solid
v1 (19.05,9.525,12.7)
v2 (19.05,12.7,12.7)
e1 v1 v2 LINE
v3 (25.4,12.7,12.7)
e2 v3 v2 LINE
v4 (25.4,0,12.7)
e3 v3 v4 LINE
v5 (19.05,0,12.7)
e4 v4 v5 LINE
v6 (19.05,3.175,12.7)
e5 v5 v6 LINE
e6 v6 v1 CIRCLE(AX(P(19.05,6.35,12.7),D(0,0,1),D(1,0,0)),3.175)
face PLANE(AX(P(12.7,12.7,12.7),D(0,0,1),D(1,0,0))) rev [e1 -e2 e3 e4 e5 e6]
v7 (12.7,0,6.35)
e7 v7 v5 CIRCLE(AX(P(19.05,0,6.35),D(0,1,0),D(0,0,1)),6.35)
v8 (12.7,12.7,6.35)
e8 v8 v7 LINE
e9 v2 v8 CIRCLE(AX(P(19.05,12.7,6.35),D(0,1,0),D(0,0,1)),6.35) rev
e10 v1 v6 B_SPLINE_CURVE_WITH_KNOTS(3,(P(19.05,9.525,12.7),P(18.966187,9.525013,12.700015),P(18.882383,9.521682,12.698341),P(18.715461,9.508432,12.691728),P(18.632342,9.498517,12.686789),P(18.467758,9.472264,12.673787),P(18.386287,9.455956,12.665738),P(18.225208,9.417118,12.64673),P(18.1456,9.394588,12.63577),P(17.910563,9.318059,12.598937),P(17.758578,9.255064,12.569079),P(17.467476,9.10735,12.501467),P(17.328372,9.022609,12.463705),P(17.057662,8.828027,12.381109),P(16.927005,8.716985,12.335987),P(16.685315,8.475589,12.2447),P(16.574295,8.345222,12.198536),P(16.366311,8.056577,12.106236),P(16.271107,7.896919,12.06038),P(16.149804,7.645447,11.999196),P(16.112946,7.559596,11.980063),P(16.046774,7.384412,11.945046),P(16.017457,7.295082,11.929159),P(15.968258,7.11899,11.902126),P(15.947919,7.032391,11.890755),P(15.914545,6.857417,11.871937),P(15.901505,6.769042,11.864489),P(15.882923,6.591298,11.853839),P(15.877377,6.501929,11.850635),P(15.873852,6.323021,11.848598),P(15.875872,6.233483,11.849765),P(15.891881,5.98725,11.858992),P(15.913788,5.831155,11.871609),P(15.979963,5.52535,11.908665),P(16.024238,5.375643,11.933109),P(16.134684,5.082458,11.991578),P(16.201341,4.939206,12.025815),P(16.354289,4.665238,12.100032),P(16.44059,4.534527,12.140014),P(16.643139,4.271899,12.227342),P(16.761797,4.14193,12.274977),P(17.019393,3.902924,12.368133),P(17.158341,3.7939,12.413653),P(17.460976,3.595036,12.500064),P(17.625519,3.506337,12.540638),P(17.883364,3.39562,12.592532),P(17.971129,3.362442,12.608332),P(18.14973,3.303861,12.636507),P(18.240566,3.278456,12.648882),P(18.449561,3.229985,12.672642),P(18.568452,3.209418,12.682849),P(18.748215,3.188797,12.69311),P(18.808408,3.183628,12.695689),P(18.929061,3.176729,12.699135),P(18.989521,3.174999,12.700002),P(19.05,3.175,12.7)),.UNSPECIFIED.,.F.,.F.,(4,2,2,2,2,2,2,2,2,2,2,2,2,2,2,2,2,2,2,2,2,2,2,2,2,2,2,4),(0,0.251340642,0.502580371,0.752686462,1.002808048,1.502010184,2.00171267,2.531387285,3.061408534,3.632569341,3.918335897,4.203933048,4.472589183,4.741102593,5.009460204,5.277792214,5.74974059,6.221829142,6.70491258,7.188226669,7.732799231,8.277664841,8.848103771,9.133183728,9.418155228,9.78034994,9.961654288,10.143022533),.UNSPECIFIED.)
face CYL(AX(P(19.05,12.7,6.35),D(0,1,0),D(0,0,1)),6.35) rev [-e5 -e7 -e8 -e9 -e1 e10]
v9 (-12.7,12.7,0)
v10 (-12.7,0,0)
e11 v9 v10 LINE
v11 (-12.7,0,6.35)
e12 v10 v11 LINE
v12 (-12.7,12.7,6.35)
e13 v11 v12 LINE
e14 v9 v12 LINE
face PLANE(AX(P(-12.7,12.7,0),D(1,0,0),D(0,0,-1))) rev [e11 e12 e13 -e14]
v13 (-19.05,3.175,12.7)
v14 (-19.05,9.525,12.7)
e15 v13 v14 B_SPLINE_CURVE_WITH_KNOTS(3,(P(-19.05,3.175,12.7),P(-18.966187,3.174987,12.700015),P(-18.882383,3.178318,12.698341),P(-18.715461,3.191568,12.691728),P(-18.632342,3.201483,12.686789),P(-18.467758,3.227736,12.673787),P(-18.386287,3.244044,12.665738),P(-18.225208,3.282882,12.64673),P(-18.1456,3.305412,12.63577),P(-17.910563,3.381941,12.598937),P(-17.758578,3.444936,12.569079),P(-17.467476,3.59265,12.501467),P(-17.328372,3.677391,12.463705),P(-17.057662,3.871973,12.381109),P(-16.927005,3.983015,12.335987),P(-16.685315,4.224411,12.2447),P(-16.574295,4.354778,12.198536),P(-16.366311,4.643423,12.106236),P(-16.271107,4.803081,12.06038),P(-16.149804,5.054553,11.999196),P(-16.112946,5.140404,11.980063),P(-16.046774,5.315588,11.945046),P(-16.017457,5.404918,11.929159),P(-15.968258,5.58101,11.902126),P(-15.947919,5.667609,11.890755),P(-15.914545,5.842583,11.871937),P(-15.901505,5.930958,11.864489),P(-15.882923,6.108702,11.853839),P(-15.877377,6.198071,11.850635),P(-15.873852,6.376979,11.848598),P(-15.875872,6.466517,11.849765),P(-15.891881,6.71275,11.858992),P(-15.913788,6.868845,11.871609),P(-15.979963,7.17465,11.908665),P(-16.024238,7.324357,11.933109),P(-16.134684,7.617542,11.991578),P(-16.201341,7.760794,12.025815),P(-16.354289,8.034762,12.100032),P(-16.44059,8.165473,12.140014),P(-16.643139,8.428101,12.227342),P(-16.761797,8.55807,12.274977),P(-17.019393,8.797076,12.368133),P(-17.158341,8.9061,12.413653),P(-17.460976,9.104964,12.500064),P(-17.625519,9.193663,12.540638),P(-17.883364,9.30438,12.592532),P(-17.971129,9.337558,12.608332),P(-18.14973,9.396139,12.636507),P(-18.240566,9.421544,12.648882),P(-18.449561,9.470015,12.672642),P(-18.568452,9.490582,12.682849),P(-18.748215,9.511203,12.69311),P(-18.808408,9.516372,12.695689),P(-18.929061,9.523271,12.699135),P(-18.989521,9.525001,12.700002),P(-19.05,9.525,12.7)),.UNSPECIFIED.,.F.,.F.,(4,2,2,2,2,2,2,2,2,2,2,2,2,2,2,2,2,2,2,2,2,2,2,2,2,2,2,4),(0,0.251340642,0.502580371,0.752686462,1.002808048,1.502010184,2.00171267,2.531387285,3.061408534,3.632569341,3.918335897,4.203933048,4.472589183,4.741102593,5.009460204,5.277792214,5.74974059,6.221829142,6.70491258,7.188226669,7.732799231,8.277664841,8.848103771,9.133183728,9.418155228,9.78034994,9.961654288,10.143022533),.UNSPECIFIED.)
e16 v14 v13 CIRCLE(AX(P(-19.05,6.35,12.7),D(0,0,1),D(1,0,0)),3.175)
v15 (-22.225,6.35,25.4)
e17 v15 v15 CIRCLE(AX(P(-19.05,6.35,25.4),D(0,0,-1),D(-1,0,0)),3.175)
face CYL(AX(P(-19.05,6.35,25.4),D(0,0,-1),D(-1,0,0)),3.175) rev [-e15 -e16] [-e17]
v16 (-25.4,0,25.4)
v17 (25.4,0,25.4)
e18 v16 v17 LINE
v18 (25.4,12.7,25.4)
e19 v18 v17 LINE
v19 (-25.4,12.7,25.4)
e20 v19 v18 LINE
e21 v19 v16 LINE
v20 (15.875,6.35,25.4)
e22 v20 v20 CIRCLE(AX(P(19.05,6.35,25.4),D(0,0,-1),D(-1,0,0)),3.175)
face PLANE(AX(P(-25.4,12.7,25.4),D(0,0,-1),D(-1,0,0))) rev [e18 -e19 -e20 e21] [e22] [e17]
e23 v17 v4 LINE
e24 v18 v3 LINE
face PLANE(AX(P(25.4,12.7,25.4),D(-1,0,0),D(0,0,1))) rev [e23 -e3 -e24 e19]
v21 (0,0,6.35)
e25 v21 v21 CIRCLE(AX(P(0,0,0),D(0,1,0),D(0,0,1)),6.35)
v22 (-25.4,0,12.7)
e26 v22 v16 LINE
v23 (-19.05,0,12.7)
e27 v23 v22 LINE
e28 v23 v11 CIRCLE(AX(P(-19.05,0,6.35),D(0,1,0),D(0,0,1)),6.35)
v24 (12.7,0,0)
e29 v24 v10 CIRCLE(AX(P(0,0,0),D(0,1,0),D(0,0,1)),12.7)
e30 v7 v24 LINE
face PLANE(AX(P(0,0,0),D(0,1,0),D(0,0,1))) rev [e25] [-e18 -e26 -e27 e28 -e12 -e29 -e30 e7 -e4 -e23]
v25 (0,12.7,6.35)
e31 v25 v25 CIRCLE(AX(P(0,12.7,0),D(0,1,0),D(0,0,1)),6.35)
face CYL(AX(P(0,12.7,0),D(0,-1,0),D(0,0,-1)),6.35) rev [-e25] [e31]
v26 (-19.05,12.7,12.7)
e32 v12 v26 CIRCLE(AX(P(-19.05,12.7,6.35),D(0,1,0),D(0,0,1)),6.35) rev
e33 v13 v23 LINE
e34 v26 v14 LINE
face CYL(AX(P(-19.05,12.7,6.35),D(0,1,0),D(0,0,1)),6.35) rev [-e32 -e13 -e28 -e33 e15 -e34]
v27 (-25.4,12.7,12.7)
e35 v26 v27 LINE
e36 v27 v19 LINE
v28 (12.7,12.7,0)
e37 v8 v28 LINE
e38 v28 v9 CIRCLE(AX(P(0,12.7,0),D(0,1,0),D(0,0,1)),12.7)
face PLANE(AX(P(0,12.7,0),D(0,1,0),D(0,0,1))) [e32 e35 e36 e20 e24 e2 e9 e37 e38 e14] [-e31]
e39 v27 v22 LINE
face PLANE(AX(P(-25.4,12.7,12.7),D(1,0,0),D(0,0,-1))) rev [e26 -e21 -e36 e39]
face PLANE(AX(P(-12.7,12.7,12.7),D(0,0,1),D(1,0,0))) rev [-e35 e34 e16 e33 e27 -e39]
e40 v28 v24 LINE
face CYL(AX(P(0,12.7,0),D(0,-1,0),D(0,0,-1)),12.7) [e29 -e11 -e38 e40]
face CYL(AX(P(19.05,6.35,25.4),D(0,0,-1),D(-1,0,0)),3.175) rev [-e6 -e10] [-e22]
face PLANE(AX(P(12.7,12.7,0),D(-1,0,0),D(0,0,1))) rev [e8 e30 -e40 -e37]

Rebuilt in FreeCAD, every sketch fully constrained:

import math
import FreeCAD as App
import Part
import Sketcher

V = App.Vector
Q = App.Units.Quantity


def edges_at(feature, points):
    """Names of the edges that pass closest to the given points."""
    edges = feature.Shape.Edges
    near = lambda p: min(range(len(edges)), key=lambda i: edges[i].distToShape(Part.Vertex(*p))[0])
    return sorted({f"Edge{near(p) + 1}" for p in points})

doc = App.newDocument("Part")
body = doc.addObject("PartDesign::Body", "Body")

# Sketch on XZ plane
sketch1 = doc.addObject("Sketcher::SketchObject", "Sketch")
body.addObject(sketch1)
sketch1.AttachmentSupport = (doc.XZ_Plane, [""])
sketch1.MapMode = "FlatFace"
sketch1.addGeometry([
    Part.LineSegment(V(-13, 0, 0), V(-13, 13, 0)),  # 0
    Part.LineSegment(V(-13, 13, 0), V(-25, 13, 0)),  # 1
    Part.LineSegment(V(-25, 13, 0), V(-25, 25, 0)),  # 2
    Part.LineSegment(V(-25, 25, 0), V(25, 25, 0)),  # 3
    Part.LineSegment(V(25, 25, 0), V(25, 13, 0)),  # 4
    Part.LineSegment(V(25, 13, 0), V(13, 13, 0)),  # 5
    Part.LineSegment(V(13, 13, 0), V(13, 0, 0)),  # 6
    Part.ArcOfCircle(Part.Circle(V(0, 0, 0), V(0, 0, 1), 13), math.radians(180), math.radians(360)),  # 7
    Part.Circle(V(0, 0, 0), V(0, 0, 1), 6),  # 8
], False)
sketch1.addConstraint([
    Sketcher.Constraint("Coincident", 0, 2, 1, 1),
    Sketcher.Constraint("Coincident", 1, 2, 2, 1),
    Sketcher.Constraint("Coincident", 2, 2, 3, 1),
    Sketcher.Constraint("Coincident", 3, 2, 4, 1),
    Sketcher.Constraint("Coincident", 4, 2, 5, 1),
    Sketcher.Constraint("Coincident", 5, 2, 6, 1),
    Sketcher.Constraint("Tangent", 6, 2, 7, 2),
    Sketcher.Constraint("Tangent", 7, 1, 0, 1),
    Sketcher.Constraint("Vertical", 0),
    Sketcher.Constraint("Horizontal", 1),
    Sketcher.Constraint("Vertical", 2),
    Sketcher.Constraint("Horizontal", 3),
    Sketcher.Constraint("Vertical", 4),
    Sketcher.Constraint("Horizontal", 5),
    Sketcher.Constraint("Vertical", 6),
    Sketcher.Constraint("Coincident", 7, 3, -1, 1),
    Sketcher.Constraint("Coincident", 8, 3, -1, 1),
    Sketcher.Constraint("Symmetric", 1, 2, 4, 2, -2),
    Sketcher.Constraint("Equal", 5, 0),
    Sketcher.Constraint("Equal", 0, 2),
    Sketcher.Constraint("Diameter", 8, Q("0.5 in")),
    Sketcher.Constraint("Radius", 7, Q("0.5 in")),
    Sketcher.Constraint("DistanceX", 3, 1, 3, 2, Q("2 in")),
])
pad1 = doc.addObject("PartDesign::Pad", "Pad")
body.addObject(pad1)
pad1.Profile = sketch1
pad1.Length = Q("0.5 in")
pad1.Reversed = True
doc.recompute()

fillet = doc.addObject("PartDesign::Fillet", "Fillet")
body.addObject(fillet)
fillet.Base = (pad1, edges_at(pad1, [(12.7, 6.35, 12.7), (-12.7, 6.35, 12.7)]))
fillet.Radius = Q("0.25 in")

# Sketch on XY plane
sketch2 = doc.addObject("Sketcher::SketchObject", "Sketch001")
body.addObject(sketch2)
sketch2.AttachmentSupport = (doc.XY_Plane, [""])
sketch2.MapMode = "FlatFace"
sketch2.AttachmentOffset = App.Placement(V(0, 0, 0.5 * 25.4), App.Rotation())
sketch2.addGeometry([
    Part.Circle(V(-19.1, 6.3, 0), V(0, 0, 1), 3.2),
    Part.Circle(V(19.1, 6.3, 0), V(0, 0, 1), 3.2),
], False)
sketch2.addConstraint([
    Sketcher.Constraint("Equal", 0, 1),
    Sketcher.Constraint("Symmetric", 0, 3, 1, 3, -2),
    Sketcher.Constraint("Diameter", 0, Q("0.25 in")),
    Sketcher.Constraint("DistanceX", 0, 3, 1, 3, Q("1.5 in")),
    Sketcher.Constraint("DistanceY", -1, 1, 0, 3, Q("0.25 in")),
])
pocket1 = doc.addObject("PartDesign::Pocket", "Pocket")
body.addObject(pocket1)
pocket1.Profile = sketch2
pocket1.Type = "ThroughAll"
pocket1.Midplane = True

doc.recompute()
